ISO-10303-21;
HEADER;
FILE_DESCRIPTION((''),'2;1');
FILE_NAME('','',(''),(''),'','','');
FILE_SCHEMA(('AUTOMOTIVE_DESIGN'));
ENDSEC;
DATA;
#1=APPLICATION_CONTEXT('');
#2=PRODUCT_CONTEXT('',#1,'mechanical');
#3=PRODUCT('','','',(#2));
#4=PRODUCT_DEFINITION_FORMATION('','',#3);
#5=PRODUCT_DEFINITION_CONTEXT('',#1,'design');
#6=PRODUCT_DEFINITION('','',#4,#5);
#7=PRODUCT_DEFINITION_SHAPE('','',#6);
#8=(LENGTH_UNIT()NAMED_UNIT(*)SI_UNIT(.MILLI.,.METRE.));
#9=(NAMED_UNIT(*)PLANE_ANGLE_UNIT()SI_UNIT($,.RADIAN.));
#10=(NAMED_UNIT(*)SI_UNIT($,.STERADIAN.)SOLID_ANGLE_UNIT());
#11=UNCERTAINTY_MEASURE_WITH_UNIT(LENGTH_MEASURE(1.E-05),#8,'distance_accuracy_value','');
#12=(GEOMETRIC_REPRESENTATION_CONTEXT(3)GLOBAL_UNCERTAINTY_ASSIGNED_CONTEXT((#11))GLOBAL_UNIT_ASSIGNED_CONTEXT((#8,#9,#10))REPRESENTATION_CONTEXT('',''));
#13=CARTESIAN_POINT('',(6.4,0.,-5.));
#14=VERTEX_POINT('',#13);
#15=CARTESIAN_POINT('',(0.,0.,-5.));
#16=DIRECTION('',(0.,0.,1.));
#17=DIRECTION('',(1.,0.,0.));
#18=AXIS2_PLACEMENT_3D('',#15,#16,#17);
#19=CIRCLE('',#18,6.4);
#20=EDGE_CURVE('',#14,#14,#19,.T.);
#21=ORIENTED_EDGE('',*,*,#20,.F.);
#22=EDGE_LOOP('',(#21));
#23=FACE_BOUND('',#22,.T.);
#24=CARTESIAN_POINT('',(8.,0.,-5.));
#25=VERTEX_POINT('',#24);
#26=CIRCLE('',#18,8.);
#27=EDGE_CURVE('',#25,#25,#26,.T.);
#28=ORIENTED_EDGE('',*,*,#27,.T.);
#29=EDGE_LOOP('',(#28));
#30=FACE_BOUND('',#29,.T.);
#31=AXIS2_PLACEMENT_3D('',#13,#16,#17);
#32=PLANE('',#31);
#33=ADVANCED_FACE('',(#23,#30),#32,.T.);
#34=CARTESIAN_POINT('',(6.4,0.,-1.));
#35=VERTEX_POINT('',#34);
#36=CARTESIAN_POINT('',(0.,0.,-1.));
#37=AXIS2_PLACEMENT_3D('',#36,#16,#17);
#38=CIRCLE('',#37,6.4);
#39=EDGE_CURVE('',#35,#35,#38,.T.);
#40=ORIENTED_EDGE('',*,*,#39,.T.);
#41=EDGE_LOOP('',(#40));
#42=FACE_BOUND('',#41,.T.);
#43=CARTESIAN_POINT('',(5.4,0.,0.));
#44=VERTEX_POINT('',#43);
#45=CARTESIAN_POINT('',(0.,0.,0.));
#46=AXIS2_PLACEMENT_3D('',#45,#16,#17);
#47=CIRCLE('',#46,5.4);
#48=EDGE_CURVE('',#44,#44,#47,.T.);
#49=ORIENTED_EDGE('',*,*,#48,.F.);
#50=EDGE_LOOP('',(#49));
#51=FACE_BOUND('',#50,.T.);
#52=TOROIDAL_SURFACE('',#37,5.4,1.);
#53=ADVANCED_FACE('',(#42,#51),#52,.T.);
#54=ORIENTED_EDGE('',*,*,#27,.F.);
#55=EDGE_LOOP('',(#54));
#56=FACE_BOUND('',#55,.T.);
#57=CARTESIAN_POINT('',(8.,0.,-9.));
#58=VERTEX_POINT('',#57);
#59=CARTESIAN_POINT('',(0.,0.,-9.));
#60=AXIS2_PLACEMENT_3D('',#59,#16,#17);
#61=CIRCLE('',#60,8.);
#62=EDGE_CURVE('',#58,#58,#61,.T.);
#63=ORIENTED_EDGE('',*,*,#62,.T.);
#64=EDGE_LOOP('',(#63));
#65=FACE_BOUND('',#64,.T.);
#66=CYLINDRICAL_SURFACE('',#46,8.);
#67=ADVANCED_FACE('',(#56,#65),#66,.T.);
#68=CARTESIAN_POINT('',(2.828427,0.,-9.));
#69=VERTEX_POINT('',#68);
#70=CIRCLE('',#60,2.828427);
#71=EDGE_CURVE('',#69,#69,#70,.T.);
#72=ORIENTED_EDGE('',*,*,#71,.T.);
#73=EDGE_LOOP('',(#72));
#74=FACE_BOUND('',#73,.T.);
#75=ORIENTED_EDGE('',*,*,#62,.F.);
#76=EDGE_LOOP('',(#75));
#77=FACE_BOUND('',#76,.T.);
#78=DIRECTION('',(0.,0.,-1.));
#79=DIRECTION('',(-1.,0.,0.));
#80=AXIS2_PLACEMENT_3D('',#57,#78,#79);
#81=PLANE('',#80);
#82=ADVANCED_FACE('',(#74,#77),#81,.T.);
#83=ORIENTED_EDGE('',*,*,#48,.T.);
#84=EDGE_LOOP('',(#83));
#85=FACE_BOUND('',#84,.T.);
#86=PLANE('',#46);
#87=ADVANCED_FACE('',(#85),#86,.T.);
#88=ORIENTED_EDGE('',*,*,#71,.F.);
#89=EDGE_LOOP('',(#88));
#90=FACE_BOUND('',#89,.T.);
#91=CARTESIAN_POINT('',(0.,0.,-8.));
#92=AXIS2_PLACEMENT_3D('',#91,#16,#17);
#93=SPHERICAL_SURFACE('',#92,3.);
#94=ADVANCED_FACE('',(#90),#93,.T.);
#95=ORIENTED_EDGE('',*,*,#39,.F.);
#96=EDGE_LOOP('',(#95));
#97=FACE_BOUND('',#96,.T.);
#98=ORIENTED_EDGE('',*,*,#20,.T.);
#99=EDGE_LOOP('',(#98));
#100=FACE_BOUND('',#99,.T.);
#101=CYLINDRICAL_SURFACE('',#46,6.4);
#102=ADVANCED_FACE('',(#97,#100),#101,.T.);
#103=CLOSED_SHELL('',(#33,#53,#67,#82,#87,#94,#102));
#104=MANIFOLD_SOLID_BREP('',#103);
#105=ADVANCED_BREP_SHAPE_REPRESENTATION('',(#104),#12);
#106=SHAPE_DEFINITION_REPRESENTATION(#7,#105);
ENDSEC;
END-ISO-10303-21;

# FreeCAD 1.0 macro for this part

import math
import FreeCAD as App
import Part
import Sketcher

doc = App.newDocument("Part")
body = doc.addObject("PartDesign::Body", "Body")

sketch1 = body.newObject("Sketcher::SketchObject", "Sketch")
sketch1.AttachmentSupport = (doc.getObject("XZ_Plane"), [""])
sketch1.MapMode = "FlatFace"
sketch1.addGeometry([
    Part.LineSegment(App.Vector(0, 0, 0), App.Vector(5.4, 0, 0)),
    Part.ArcOfCircle(Part.Circle(App.Vector(5.4, -1, 0), App.Vector(0, 0, 1), 1), math.radians(0), math.radians(90)),
    Part.LineSegment(App.Vector(6.4, -1, 0), App.Vector(6.4, -5, 0)),
    Part.LineSegment(App.Vector(6.4, -5, 0), App.Vector(8, -5, 0)),
    Part.LineSegment(App.Vector(8, -5, 0), App.Vector(8, -9, 0)),
    Part.LineSegment(App.Vector(8, -9, 0), App.Vector(2.8, -9, 0)),
    Part.ArcOfCircle(Part.Circle(App.Vector(0, -8, 0), App.Vector(0, 0, 1), 3), math.radians(-90), math.radians(-19)),
    Part.LineSegment(App.Vector(0, -11, 0), App.Vector(0, 0, 0)),
], False)
sketch1.addConstraint([
    Sketcher.Constraint("Tangent", 0, 2, 1, 2),
    Sketcher.Constraint("Tangent", 1, 1, 2, 1),
    Sketcher.Constraint("Coincident", 2, 2, 3, 1),
    Sketcher.Constraint("Coincident", 3, 2, 4, 1),
    Sketcher.Constraint("Coincident", 4, 2, 5, 1),
    Sketcher.Constraint("Coincident", 5, 2, 6, 2),
    Sketcher.Constraint("Coincident", 6, 1, 7, 1),
    Sketcher.Constraint("Coincident", 7, 2, 0, 1),
    Sketcher.Constraint("Horizontal", 0),
    Sketcher.Constraint("Vertical", 2),
    Sketcher.Constraint("Horizontal", 3),
    Sketcher.Constraint("Vertical", 4),
    Sketcher.Constraint("Horizontal", 5),
    Sketcher.Constraint("Vertical", 7),
    Sketcher.Constraint("Coincident", 7, 2, -1, 1),
    Sketcher.Constraint("PointOnObject", 6, 3, -2),
    Sketcher.Constraint("Equal", 2, 4),
    Sketcher.Constraint("Radius", 1, 1.0),
    Sketcher.Constraint("Radius", 6, 3.0),
    Sketcher.Constraint("DistanceY", 2, 2, 2, 1, 4.0),
    Sketcher.Constraint("DistanceY", 7, 1, 7, 2, 11.0),
    Sketcher.Constraint("DistanceX", 0, 1, 0, 2, 5.4),
    Sketcher.Constraint("DistanceX", 3, 1, 3, 2, 1.6),
])
revolution = body.newObject("PartDesign::Revolution", "Revolution")
revolution.Profile = sketch1
revolution.ReferenceAxis = (sketch1, ["V_Axis"])
revolution.Angle = 360

doc.recompute()
